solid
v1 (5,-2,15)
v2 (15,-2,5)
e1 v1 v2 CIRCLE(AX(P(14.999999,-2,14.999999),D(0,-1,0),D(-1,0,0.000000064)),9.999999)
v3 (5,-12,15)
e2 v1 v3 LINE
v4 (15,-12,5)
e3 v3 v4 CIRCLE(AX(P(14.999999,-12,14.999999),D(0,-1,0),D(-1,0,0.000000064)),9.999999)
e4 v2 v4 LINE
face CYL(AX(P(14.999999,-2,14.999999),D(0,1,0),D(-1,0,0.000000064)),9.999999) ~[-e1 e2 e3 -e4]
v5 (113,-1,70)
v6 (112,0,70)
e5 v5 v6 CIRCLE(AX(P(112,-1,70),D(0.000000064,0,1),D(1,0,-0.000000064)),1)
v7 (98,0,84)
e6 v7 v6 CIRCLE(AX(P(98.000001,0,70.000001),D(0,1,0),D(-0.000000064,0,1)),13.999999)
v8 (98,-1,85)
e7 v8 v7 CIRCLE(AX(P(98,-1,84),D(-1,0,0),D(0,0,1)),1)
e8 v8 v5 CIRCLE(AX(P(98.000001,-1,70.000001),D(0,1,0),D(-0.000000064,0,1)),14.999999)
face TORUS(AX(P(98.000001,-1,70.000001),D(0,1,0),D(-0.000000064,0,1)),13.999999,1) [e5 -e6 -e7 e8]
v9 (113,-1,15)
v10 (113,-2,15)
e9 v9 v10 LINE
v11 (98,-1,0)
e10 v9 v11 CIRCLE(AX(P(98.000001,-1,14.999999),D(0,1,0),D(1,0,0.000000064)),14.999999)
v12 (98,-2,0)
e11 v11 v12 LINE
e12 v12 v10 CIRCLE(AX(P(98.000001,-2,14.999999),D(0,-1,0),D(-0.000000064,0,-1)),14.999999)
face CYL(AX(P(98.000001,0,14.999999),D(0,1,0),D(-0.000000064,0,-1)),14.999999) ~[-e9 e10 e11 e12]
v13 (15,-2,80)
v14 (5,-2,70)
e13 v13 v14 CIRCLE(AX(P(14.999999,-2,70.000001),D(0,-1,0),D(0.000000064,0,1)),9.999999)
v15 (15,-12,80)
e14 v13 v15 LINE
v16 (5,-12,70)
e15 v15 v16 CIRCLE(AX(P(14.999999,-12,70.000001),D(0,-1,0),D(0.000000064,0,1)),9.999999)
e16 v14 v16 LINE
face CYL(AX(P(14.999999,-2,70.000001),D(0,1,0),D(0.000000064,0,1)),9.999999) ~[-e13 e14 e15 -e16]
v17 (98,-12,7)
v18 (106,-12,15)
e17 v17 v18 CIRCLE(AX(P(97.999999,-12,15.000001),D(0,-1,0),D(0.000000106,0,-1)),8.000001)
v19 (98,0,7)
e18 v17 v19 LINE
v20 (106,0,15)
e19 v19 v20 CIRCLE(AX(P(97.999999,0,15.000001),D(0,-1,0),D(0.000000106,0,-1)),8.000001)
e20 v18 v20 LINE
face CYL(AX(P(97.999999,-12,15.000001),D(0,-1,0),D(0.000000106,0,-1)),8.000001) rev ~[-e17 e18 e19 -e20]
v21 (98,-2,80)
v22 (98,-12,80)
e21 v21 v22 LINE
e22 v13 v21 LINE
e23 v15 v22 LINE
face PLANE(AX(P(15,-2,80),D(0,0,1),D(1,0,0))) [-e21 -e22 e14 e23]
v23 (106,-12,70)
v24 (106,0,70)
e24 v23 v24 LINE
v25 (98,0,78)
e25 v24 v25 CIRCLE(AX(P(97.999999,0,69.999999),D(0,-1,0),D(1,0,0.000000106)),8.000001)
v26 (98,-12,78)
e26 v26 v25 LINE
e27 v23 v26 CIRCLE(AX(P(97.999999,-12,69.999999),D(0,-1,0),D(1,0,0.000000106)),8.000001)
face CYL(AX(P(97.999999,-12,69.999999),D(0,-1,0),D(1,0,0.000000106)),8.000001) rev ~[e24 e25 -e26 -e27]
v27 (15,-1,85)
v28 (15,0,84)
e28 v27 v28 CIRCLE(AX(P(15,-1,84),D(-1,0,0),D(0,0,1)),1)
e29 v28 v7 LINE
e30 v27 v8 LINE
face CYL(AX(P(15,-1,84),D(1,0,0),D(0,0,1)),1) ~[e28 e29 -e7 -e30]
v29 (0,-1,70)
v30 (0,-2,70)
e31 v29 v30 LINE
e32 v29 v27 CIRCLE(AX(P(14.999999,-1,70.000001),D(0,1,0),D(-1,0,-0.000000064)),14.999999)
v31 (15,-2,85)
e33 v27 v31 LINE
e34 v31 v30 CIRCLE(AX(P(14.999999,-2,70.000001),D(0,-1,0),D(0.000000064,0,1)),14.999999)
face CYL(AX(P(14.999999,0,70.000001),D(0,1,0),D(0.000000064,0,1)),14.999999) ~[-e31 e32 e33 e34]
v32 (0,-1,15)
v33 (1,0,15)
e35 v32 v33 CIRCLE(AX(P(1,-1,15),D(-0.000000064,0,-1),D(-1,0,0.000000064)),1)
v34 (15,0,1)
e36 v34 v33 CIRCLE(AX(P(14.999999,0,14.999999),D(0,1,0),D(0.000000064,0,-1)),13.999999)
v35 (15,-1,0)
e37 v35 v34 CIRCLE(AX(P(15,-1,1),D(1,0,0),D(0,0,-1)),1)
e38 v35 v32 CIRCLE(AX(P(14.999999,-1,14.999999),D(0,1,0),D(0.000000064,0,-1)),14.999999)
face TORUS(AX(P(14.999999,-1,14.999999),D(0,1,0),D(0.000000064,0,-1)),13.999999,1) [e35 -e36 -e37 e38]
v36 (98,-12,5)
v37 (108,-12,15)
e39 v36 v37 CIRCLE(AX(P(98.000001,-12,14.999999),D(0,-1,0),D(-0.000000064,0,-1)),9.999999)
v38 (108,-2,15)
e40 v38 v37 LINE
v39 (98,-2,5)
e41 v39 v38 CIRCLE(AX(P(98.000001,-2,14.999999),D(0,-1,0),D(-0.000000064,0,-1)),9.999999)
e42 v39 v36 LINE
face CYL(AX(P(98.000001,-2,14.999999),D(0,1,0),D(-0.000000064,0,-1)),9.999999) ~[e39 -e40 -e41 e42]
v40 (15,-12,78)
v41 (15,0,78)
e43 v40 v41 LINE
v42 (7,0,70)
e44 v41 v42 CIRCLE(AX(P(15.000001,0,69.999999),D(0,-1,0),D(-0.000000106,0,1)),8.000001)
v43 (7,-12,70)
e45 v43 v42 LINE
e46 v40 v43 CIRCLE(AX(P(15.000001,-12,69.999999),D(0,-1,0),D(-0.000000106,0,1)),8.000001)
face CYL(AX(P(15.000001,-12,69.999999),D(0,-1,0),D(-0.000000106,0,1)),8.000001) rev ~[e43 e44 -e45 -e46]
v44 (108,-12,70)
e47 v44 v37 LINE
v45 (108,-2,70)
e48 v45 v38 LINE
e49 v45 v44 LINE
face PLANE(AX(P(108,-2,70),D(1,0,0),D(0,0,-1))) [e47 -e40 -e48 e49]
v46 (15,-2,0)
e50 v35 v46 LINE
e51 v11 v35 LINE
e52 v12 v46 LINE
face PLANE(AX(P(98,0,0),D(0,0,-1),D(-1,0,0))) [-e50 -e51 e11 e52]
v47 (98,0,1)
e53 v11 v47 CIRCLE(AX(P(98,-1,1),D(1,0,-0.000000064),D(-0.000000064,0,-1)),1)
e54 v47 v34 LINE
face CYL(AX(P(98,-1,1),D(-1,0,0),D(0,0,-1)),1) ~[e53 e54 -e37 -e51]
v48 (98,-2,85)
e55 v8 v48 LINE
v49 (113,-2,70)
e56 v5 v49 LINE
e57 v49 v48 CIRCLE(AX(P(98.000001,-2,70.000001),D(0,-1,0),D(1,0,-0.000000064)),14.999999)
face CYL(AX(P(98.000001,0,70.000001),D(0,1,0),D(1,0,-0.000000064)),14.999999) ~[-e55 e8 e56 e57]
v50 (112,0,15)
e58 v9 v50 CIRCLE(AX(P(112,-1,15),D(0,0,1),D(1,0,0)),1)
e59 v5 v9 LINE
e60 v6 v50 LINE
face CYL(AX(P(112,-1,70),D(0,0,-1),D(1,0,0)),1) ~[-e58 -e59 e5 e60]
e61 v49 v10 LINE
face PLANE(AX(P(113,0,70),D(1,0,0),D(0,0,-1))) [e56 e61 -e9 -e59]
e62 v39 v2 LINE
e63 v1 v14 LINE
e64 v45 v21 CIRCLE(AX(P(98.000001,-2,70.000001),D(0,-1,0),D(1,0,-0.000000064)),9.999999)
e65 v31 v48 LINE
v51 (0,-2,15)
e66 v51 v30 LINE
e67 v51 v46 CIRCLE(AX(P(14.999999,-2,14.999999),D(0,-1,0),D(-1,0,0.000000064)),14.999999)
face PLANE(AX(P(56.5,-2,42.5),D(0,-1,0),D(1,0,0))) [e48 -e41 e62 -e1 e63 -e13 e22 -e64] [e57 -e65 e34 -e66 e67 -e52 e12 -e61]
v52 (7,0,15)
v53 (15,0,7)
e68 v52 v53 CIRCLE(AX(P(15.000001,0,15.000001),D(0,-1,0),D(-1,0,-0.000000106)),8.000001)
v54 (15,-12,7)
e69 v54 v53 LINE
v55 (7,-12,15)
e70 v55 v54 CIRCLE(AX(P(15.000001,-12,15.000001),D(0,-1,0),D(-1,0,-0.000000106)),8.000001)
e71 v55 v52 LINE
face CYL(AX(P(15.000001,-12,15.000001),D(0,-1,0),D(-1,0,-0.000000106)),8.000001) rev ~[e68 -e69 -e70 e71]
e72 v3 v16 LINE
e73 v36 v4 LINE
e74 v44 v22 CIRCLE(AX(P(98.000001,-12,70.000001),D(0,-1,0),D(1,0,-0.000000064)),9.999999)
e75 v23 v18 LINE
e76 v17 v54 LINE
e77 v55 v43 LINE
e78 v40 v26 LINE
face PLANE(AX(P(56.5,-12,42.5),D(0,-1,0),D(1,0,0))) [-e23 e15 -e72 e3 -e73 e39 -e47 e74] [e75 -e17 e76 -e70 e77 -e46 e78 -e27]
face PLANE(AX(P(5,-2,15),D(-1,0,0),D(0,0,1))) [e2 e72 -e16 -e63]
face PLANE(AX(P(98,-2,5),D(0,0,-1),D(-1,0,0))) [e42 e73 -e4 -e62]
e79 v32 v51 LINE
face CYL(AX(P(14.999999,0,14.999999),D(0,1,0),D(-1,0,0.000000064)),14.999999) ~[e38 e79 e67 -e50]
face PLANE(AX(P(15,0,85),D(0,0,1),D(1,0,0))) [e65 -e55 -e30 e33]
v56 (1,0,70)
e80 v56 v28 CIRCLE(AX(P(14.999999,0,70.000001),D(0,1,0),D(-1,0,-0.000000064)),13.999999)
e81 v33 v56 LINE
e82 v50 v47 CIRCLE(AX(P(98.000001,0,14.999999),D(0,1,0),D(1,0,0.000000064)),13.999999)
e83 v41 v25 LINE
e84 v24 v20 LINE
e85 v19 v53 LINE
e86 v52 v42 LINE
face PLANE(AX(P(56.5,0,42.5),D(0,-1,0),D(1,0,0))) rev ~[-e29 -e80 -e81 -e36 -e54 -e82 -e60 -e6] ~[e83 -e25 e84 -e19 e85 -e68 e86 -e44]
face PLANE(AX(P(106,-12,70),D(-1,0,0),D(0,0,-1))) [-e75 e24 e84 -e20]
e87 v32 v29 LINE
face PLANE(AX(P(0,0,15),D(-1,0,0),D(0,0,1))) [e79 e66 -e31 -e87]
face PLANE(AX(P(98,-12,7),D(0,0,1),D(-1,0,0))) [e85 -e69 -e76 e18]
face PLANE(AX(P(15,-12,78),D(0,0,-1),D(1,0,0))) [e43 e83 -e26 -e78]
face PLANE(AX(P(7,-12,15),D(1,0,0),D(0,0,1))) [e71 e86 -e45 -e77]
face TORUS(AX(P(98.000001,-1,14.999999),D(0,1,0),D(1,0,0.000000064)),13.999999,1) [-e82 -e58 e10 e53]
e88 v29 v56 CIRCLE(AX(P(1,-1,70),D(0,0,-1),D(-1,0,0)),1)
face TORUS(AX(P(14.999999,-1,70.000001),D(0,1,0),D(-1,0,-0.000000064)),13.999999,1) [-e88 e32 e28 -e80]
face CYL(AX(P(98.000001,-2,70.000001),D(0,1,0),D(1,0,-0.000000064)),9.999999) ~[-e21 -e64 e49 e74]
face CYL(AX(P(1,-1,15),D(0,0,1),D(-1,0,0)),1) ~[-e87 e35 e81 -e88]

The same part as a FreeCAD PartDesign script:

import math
import FreeCAD as App
import Part
import Sketcher
Q = App.Units.Quantity


def edges_at(feature, points):
    """Names of the edges that pass closest to the given points."""
    edges = feature.Shape.Edges
    near = lambda p: min(range(len(edges)), key=lambda i: edges[i].distToShape(Part.Vertex(*p))[0])
    return sorted({f"Edge{near(p) + 1}" for p in points})

doc = App.newDocument("Part")
body = doc.addObject("PartDesign::Body", "Body")

# Sketch on XZ plane
sketch1 = body.newObject("Sketcher::SketchObject", "Sketch")
sketch1.AttachmentSupport = (doc.getObject("XZ_Plane"), [""])
sketch1.MapMode = "FlatFace"
sketch1.addGeometry([
    Part.ArcOfCircle(Part.Circle(App.Vector(15, 70, 0), App.Vector(0, 0, 1), 15), math.radians(90), math.radians(180)),  # 0
    Part.LineSegment(App.Vector(0, 70, 0), App.Vector(0, 15, 0)),  # 1
    Part.ArcOfCircle(Part.Circle(App.Vector(15, 15, 0), App.Vector(0, 0, 1), 15), math.radians(180), math.radians(270)),  # 2
    Part.LineSegment(App.Vector(15, 0, 0), App.Vector(98, 0, 0)),  # 3
    Part.ArcOfCircle(Part.Circle(App.Vector(98, 15, 0), App.Vector(0, 0, 1), 15), math.radians(-90), math.radians(0)),  # 4
    Part.LineSegment(App.Vector(113, 15, 0), App.Vector(113, 70, 0)),  # 5
    Part.ArcOfCircle(Part.Circle(App.Vector(98, 70, 0), App.Vector(0, 0, 1), 15), math.radians(0), math.radians(90)),  # 6
    Part.LineSegment(App.Vector(98, 85, 0), App.Vector(15, 85, 0)),  # 7
], False)
sketch1.addConstraint([
    Sketcher.Constraint("Tangent", 0, 2, 1, 1),
    Sketcher.Constraint("Tangent", 1, 2, 2, 1),
    Sketcher.Constraint("Tangent", 2, 2, 3, 1),
    Sketcher.Constraint("Tangent", 3, 2, 4, 1),
    Sketcher.Constraint("Tangent", 4, 2, 5, 1),
    Sketcher.Constraint("Tangent", 5, 2, 6, 1),
    Sketcher.Constraint("Tangent", 6, 2, 7, 1),
    Sketcher.Constraint("Tangent", 7, 2, 0, 1),
    Sketcher.Constraint("Vertical", 1),
    Sketcher.Constraint("Horizontal", 3),
    Sketcher.Constraint("Vertical", 5),
    Sketcher.Constraint("Horizontal", 7),
    Sketcher.Constraint("Equal", 0, 2),
    Sketcher.Constraint("Equal", 2, 4),
    Sketcher.Constraint("Equal", 4, 6),
    Sketcher.Constraint("PointOnObject", 0, 2, -2),
    Sketcher.Constraint("PointOnObject", 2, 2, -1),
    Sketcher.Constraint("Radius", 0, Q("14.999999 mm")),
    Sketcher.Constraint("DistanceX", 3, 1, 3, 2, Q("83 mm")),
    Sketcher.Constraint("DistanceY", 1, 2, 1, 1, Q("55 mm")),
])
pad1 = body.newObject("PartDesign::Pad", "Pad")
pad1.Profile = sketch1
pad1.Length = 2

# Sketch on XZ plane
sketch2 = body.newObject("Sketcher::SketchObject", "Sketch001")
sketch2.AttachmentSupport = (doc.getObject("XZ_Plane"), [""])
sketch2.MapMode = "FlatFace"
sketch2.AttachmentOffset = App.Placement(App.Vector(0, 0, 2), App.Rotation())
sketch2.addGeometry([
    Part.ArcOfCircle(Part.Circle(App.Vector(15, 70, 0), App.Vector(0, 0, 1), 10), math.radians(90), math.radians(180)),  # 0
    Part.LineSegment(App.Vector(5, 70, 0), App.Vector(5, 15, 0)),  # 1
    Part.ArcOfCircle(Part.Circle(App.Vector(15, 15, 0), App.Vector(0, 0, 1), 10), math.radians(180), math.radians(270)),  # 2
    Part.LineSegment(App.Vector(15, 5, 0), App.Vector(98, 5, 0)),  # 3
    Part.ArcOfCircle(Part.Circle(App.Vector(98, 15, 0), App.Vector(0, 0, 1), 10), math.radians(-90), math.radians(0)),  # 4
    Part.LineSegment(App.Vector(108, 15, 0), App.Vector(108, 70, 0)),  # 5
    Part.ArcOfCircle(Part.Circle(App.Vector(98, 70, 0), App.Vector(0, 0, 1), 10), math.radians(0), math.radians(90)),  # 6
    Part.LineSegment(App.Vector(98, 80, 0), App.Vector(15, 80, 0)),  # 7
], False)
sketch2.addConstraint([
    Sketcher.Constraint("Tangent", 0, 2, 1, 1),
    Sketcher.Constraint("Tangent", 1, 2, 2, 1),
    Sketcher.Constraint("Tangent", 2, 2, 3, 1),
    Sketcher.Constraint("Tangent", 3, 2, 4, 1),
    Sketcher.Constraint("Tangent", 4, 2, 5, 1),
    Sketcher.Constraint("Tangent", 5, 2, 6, 1),
    Sketcher.Constraint("Tangent", 6, 2, 7, 1),
    Sketcher.Constraint("Tangent", 7, 2, 0, 1),
    Sketcher.Constraint("Vertical", 1),
    Sketcher.Constraint("Horizontal", 3),
    Sketcher.Constraint("Vertical", 5),
    Sketcher.Constraint("Horizontal", 7),
    Sketcher.Constraint("Equal", 0, 2),
    Sketcher.Constraint("Equal", 2, 4),
    Sketcher.Constraint("Equal", 4, 6),
    Sketcher.Constraint("Radius", 0, Q("9.999999 mm")),
    Sketcher.Constraint("DistanceX", 3, 1, 3, 2, Q("83 mm")),
    Sketcher.Constraint("DistanceY", 1, 2, 1, 1, Q("55 mm")),
    Sketcher.Constraint("DistanceX", -1, 1, 0, 3, Q("14.999999 mm")),
    Sketcher.Constraint("DistanceY", -1, 1, 0, 3, Q("70.000001 mm")),
])
pad2 = body.newObject("PartDesign::Pad", "Pad001")
pad2.Profile = sketch2
pad2.Length = 10

# Sketch on XZ plane
sketch3 = body.newObject("Sketcher::SketchObject", "Sketch002")
sketch3.AttachmentSupport = (doc.getObject("XZ_Plane"), [""])
sketch3.MapMode = "FlatFace"
sketch3.AttachmentOffset = App.Placement(App.Vector(0, 0, 12), App.Rotation())
sketch3.addGeometry([
    Part.ArcOfCircle(Part.Circle(App.Vector(15, 70, 0), App.Vector(0, 0, 1), 8), math.radians(90), math.radians(180)),  # 0
    Part.LineSegment(App.Vector(7, 70, 0), App.Vector(7, 15, 0)),  # 1
    Part.ArcOfCircle(Part.Circle(App.Vector(15, 15, 0), App.Vector(0, 0, 1), 8), math.radians(-180), math.radians(-90)),  # 2
    Part.LineSegment(App.Vector(15, 7, 0), App.Vector(98, 7, 0)),  # 3
    Part.ArcOfCircle(Part.Circle(App.Vector(98, 15, 0), App.Vector(0, 0, 1), 8), math.radians(-90), math.radians(0)),  # 4
    Part.LineSegment(App.Vector(106, 15, 0), App.Vector(106, 70, 0)),  # 5
    Part.ArcOfCircle(Part.Circle(App.Vector(98, 70, 0), App.Vector(0, 0, 1), 8), math.radians(0), math.radians(90)),  # 6
    Part.LineSegment(App.Vector(98, 78, 0), App.Vector(15, 78, 0)),  # 7
], False)
sketch3.addConstraint([
    Sketcher.Constraint("Tangent", 0, 2, 1, 1),
    Sketcher.Constraint("Tangent", 1, 2, 2, 1),
    Sketcher.Constraint("Tangent", 2, 2, 3, 1),
    Sketcher.Constraint("Tangent", 3, 2, 4, 1),
    Sketcher.Constraint("Tangent", 4, 2, 5, 1),
    Sketcher.Constraint("Tangent", 5, 2, 6, 1),
    Sketcher.Constraint("Tangent", 6, 2, 7, 1),
    Sketcher.Constraint("Tangent", 7, 2, 0, 1),
    Sketcher.Constraint("Vertical", 1),
    Sketcher.Constraint("Horizontal", 3),
    Sketcher.Constraint("Vertical", 5),
    Sketcher.Constraint("Horizontal", 7),
    Sketcher.Constraint("Equal", 0, 2),
    Sketcher.Constraint("Equal", 2, 4),
    Sketcher.Constraint("Equal", 4, 6),
    Sketcher.Constraint("Radius", 0, Q("8.000001 mm")),
    Sketcher.Constraint("DistanceX", 3, 1, 3, 2, Q("83 mm")),
    Sketcher.Constraint("DistanceY", 1, 2, 1, 1, Q("55 mm")),
    Sketcher.Constraint("DistanceX", -1, 1, 0, 3, Q("15.000001 mm")),
    Sketcher.Constraint("DistanceY", -1, 1, 0, 3, Q("69.999999 mm")),
])
pocket1 = body.newObject("PartDesign::Pocket", "Pocket")
pocket1.Profile = sketch3
pocket1.Type = "ThroughAll"
doc.recompute()

fillet = body.newObject("PartDesign::Fillet", "Fillet")
fillet.Base = (pocket1, edges_at(pocket1, [(56.5, 0, 85)]))
fillet.Radius = 1

doc.recompute()
